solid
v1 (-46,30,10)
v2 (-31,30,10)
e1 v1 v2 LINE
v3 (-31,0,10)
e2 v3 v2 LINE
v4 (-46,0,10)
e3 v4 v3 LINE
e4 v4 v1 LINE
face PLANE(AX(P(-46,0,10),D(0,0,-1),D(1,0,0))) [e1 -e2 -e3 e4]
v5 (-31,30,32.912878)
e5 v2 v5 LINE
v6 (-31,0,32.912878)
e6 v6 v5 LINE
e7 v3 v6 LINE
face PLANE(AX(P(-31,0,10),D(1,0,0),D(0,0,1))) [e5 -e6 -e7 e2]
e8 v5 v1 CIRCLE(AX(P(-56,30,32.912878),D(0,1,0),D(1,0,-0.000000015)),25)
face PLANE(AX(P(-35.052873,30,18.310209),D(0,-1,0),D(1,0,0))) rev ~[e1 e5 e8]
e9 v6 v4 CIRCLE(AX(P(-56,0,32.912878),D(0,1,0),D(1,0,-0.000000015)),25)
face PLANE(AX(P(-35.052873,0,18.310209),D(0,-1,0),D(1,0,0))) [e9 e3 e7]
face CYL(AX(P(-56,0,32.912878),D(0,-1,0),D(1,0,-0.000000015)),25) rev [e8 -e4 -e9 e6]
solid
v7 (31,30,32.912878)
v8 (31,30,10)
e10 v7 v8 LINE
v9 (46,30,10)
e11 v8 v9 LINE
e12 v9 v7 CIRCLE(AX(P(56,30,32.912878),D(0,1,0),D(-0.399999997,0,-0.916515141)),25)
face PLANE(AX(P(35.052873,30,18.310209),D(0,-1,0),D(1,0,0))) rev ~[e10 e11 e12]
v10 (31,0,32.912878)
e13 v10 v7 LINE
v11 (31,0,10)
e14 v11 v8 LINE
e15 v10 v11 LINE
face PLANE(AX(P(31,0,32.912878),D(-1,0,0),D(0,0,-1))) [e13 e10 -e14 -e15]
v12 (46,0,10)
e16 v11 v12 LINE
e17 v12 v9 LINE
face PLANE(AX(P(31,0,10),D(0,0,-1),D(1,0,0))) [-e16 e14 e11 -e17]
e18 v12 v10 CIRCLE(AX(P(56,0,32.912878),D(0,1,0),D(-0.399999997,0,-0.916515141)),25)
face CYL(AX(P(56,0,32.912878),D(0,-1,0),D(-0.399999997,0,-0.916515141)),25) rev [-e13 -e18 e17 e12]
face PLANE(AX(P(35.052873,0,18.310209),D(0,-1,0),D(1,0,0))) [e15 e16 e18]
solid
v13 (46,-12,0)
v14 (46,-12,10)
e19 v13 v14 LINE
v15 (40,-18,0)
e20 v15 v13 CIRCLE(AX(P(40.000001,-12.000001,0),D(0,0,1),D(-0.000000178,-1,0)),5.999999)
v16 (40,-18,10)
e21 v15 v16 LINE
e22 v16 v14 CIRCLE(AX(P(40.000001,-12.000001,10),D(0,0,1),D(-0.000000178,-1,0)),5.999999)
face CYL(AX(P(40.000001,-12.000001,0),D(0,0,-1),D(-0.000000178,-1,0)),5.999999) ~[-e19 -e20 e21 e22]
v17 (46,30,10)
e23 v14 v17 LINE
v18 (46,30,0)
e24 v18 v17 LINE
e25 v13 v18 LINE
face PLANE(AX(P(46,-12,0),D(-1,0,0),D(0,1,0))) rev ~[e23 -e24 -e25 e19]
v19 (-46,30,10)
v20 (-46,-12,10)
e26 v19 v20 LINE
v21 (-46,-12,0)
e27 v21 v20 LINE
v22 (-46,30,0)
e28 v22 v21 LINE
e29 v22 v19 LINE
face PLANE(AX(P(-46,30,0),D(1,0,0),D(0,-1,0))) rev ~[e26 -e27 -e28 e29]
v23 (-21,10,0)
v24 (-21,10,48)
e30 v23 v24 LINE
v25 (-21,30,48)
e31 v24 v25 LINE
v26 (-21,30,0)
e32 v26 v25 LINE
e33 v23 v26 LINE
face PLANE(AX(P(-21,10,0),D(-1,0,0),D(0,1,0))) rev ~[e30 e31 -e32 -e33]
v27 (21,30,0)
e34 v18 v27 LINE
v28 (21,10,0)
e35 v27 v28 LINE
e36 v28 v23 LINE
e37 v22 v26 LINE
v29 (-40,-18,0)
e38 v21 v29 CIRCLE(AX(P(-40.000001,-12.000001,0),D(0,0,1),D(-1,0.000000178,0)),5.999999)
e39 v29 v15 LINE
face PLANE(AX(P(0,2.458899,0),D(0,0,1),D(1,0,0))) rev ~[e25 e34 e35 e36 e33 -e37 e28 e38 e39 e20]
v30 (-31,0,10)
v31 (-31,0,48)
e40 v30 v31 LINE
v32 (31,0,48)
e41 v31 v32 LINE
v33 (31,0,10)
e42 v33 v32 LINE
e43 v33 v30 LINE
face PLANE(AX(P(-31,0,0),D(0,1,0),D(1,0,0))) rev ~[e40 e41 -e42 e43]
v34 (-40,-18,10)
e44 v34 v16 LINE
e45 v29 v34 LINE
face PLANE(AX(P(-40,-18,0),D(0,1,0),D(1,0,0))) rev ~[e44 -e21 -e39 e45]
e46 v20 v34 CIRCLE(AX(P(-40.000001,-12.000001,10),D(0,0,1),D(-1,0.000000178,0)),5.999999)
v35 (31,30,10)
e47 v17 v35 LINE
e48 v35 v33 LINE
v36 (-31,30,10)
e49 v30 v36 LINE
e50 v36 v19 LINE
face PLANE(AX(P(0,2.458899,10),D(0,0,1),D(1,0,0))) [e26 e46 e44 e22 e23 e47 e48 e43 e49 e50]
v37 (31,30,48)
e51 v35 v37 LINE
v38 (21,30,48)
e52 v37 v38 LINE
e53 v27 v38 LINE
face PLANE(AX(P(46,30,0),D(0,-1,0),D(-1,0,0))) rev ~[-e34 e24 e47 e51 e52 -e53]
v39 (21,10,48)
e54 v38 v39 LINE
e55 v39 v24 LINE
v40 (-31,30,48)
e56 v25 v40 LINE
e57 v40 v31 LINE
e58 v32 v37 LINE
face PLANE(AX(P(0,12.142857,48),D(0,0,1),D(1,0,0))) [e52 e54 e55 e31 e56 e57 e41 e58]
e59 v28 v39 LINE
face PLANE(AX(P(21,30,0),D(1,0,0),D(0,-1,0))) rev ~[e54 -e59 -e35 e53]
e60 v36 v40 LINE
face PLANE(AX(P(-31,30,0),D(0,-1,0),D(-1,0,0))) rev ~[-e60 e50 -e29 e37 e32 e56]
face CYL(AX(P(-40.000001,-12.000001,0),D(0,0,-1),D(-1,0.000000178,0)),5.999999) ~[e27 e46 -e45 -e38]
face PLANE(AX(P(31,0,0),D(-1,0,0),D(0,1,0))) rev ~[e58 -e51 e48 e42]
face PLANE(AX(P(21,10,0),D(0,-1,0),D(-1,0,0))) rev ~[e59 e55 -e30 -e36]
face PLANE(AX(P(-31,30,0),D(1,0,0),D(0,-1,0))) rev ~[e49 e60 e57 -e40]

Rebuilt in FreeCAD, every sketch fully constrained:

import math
import FreeCAD as App
import Part
import Sketcher

V = App.Vector
Q = App.Units.Quantity

doc = App.newDocument("Part")
body = doc.addObject("PartDesign::Body", "Body")

# Sketch on XY plane
sketch1 = doc.addObject("Sketcher::SketchObject", "Sketch")
body.addObject(sketch1)
sketch1.AttachmentSupport = (doc.XY_Plane, [""])
sketch1.MapMode = "FlatFace"
sketch1.addGeometry([
    Part.LineSegment(V(-21, 30, 0), V(-31, 30, 0)),  # 0
    Part.LineSegment(V(-31, 30, 0), V(-31, 0, 0)),  # 1
    Part.LineSegment(V(-31, 0, 0), V(31, 0, 0)),  # 2
    Part.LineSegment(V(31, 0, 0), V(31, 30, 0)),  # 3
    Part.LineSegment(V(31, 30, 0), V(21, 30, 0)),  # 4
    Part.LineSegment(V(21, 30, 0), V(21, 10, 0)),  # 5
    Part.LineSegment(V(21, 10, 0), V(-21, 10, 0)),  # 6
    Part.LineSegment(V(-21, 10, 0), V(-21, 30, 0)),  # 7
], False)
sketch1.addConstraint([
    Sketcher.Constraint("Coincident", 0, 2, 1, 1),
    Sketcher.Constraint("Coincident", 1, 2, 2, 1),
    Sketcher.Constraint("Coincident", 2, 2, 3, 1),
    Sketcher.Constraint("Coincident", 3, 2, 4, 1),
    Sketcher.Constraint("Coincident", 4, 2, 5, 1),
    Sketcher.Constraint("Coincident", 5, 2, 6, 1),
    Sketcher.Constraint("Coincident", 6, 2, 7, 1),
    Sketcher.Constraint("Coincident", 7, 2, 0, 1),
    Sketcher.Constraint("Horizontal", 0),
    Sketcher.Constraint("Vertical", 1),
    Sketcher.Constraint("Horizontal", 2),
    Sketcher.Constraint("Vertical", 3),
    Sketcher.Constraint("Horizontal", 4),
    Sketcher.Constraint("Vertical", 5),
    Sketcher.Constraint("Horizontal", 6),
    Sketcher.Constraint("Vertical", 7),
    Sketcher.Constraint("Symmetric", 1, 2, 2, 2, -1, 1),
    Sketcher.Constraint("Symmetric", 4, 2, 7, 2, -2),
    Sketcher.Constraint("DistanceX", 0, 2, 0, 1, Q("10 mm")),
    Sketcher.Constraint("DistanceX", 2, 1, 2, 2, Q("62 mm")),
    Sketcher.Constraint("DistanceY", 1, 2, 1, 1, Q("30 mm")),
    Sketcher.Constraint("DistanceY", 5, 2, 5, 1, Q("20 mm")),
])
pad1 = doc.addObject("PartDesign::Pad", "Pad")
body.addObject(pad1)
pad1.Profile = sketch1
pad1.Length = 48

# Sketch on XY plane
sketch2 = doc.addObject("Sketcher::SketchObject", "Sketch001")
body.addObject(sketch2)
sketch2.AttachmentSupport = (doc.XY_Plane, [""])
sketch2.MapMode = "FlatFace"
sketch2.addGeometry([
    Part.LineSegment(V(46, -12, 0), V(46, 30, 0)),  # 0
    Part.LineSegment(V(46, 30, 0), V(31, 30, 0)),  # 1
    Part.LineSegment(V(31, 30, 0), V(31, 0, 0)),  # 2
    Part.LineSegment(V(31, 0, 0), V(-31, 0, 0)),  # 3
    Part.LineSegment(V(-31, 0, 0), V(-31, 30, 0)),  # 4
    Part.LineSegment(V(-31, 30, 0), V(-46, 30, 0)),  # 5
    Part.LineSegment(V(-46, 30, 0), V(-46, -12, 0)),  # 6
    Part.ArcOfCircle(Part.Circle(V(-40, -12, 0), V(0, 0, 1), 6), math.radians(180), math.radians(270)),  # 7
    Part.LineSegment(V(-40, -18, 0), V(40, -18, 0)),  # 8
    Part.ArcOfCircle(Part.Circle(V(40, -12, 0), V(0, 0, 1), 6), math.radians(-90), math.radians(0)),  # 9
], False)
sketch2.addConstraint([
    Sketcher.Constraint("Coincident", 0, 2, 1, 1),
    Sketcher.Constraint("Coincident", 1, 2, 2, 1),
    Sketcher.Constraint("Coincident", 2, 2, 3, 1),
    Sketcher.Constraint("Coincident", 3, 2, 4, 1),
    Sketcher.Constraint("Coincident", 4, 2, 5, 1),
    Sketcher.Constraint("Coincident", 5, 2, 6, 1),
    Sketcher.Constraint("Tangent", 6, 2, 7, 1),
    Sketcher.Constraint("Tangent", 7, 2, 8, 1),
    Sketcher.Constraint("Tangent", 8, 2, 9, 1),
    Sketcher.Constraint("Tangent", 9, 2, 0, 1),
    Sketcher.Constraint("Vertical", 0),
    Sketcher.Constraint("Horizontal", 1),
    Sketcher.Constraint("Vertical", 2),
    Sketcher.Constraint("Horizontal", 3),
    Sketcher.Constraint("Vertical", 4),
    Sketcher.Constraint("Horizontal", 5),
    Sketcher.Constraint("Vertical", 6),
    Sketcher.Constraint("Horizontal", 8),
    Sketcher.Constraint("Equal", 7, 9),
    Sketcher.Constraint("Symmetric", 2, 2, 3, 2, -1, 1),
    Sketcher.Constraint("Symmetric", 0, 2, 5, 2, -2),
    Sketcher.Constraint("Radius", 7, Q("5.999999 mm")),
    Sketcher.Constraint("DistanceX", 1, 2, 1, 1, Q("15 mm")),
    Sketcher.Constraint("DistanceX", 3, 2, 3, 1, Q("62 mm")),
    Sketcher.Constraint("DistanceY", 0, 1, 0, 2, Q("42 mm")),
    Sketcher.Constraint("DistanceY", 2, 2, 2, 1, Q("30 mm")),
])
pad2 = doc.addObject("PartDesign::Pad", "Pad001")
body.addObject(pad2)
pad2.Profile = sketch2
pad2.Length = 10
body2 = doc.addObject("PartDesign::Body", "Body001")
body2.AllowCompound = True

# Sketch on XZ plane
sketch3 = doc.addObject("Sketcher::SketchObject", "Sketch002")
body2.addObject(sketch3)
sketch3.AttachmentSupport = (doc.getObject("XZ_Plane001"), [""])
sketch3.MapMode = "FlatFace"
sketch3.addGeometry([
    Part.ArcOfCircle(Part.Circle(V(-56, 33, 0), V(0, 0, 1), 25), math.radians(-66), math.radians(0)),  # 0
    Part.LineSegment(V(-46, 10, 0), V(-31, 10, 0)),  # 1
    Part.LineSegment(V(-31, 10, 0), V(-31, 33, 0)),  # 2
    Part.ArcOfCircle(Part.Circle(V(56, 33, 0), V(0, 0, 1), 25), math.radians(-180), math.radians(-114)),  # 3
    Part.LineSegment(V(31, 33, 0), V(31, 10, 0)),  # 4
    Part.LineSegment(V(31, 10, 0), V(46, 10, 0)),  # 5
], False)
sketch3.addConstraint([
    Sketcher.Constraint("Coincident", 0, 1, 1, 1),
    Sketcher.Constraint("Coincident", 1, 2, 2, 1),
    Sketcher.Constraint("Tangent", 2, 2, 0, 2),
    Sketcher.Constraint("Tangent", 3, 1, 4, 1),
    Sketcher.Constraint("Coincident", 4, 2, 5, 1),
    Sketcher.Constraint("Coincident", 5, 2, 3, 2),
    Sketcher.Constraint("Horizontal", 1),
    Sketcher.Constraint("Vertical", 2),
    Sketcher.Constraint("Vertical", 4),
    Sketcher.Constraint("Horizontal", 5),
    Sketcher.Constraint("Equal", 0, 3),
    Sketcher.Constraint("Symmetric", 0, 3, 3, 3, -2),
    Sketcher.Constraint("Horizontal", 1, 2, 4, 2),
    Sketcher.Constraint("Radius", 0, Q("25 mm")),
    Sketcher.Constraint("DistanceX", 1, 1, 1, 2, Q("15 mm")),
    Sketcher.Constraint("DistanceX", 0, 3, -1, 1, Q("56 mm")),
    Sketcher.Constraint("DistanceY", -1, 1, 0, 1, Q("10 mm")),
])
pad3 = doc.addObject("PartDesign::Pad", "Pad002")
body2.addObject(pad3)
pad3.Profile = sketch3
pad3.Length = 30
pad3.Reversed = True

doc.recompute()
